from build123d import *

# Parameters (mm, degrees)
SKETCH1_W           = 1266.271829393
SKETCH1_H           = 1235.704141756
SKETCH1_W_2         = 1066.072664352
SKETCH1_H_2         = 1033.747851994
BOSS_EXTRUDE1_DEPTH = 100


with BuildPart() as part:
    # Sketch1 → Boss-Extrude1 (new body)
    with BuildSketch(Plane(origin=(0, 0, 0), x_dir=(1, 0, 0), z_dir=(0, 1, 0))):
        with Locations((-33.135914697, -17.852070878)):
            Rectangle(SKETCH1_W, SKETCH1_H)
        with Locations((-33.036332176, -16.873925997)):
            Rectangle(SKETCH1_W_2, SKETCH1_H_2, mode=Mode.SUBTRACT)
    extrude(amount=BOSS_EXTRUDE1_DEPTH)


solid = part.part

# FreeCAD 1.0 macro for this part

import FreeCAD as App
import Part
import Sketcher
from FreeCAD import Vector

doc = App.newDocument("Part")
params = doc.addObject("Spreadsheet::Sheet", "Params")
for row, (alias, value) in enumerate([
    ("pad1_length", "100 mm"),
], start=1):
    params.set(f"A{row}", alias)
    params.set(f"B{row}", "=" + value)
    params.setAlias(f"B{row}", alias)

body = doc.addObject("PartDesign::Body", "Body")

# Sketch on XZ plane
sketch1 = body.newObject("Sketcher::SketchObject", "Sketch")
sketch1.AttachmentSupport = (doc.getObject("XZ_Plane"), [""])
sketch1.MapMode = "FlatFace"
sketch1.addGeometry(Part.LineSegment(Vector(-666.271829, -600, 0), Vector(-666.271829, 635.704142, 0)), False)
sketch1.addGeometry(Part.LineSegment(Vector(-666.271829, 635.704142, 0), Vector(600, 635.704142, 0)), False)
sketch1.addGeometry(Part.LineSegment(Vector(600, 635.704142, 0), Vector(600, -600, 0)), False)
sketch1.addGeometry(Part.LineSegment(Vector(600, -600, 0), Vector(-666.271829, -600, 0)), False)
sketch1.addGeometry(Part.LineSegment(Vector(500, 533.747852, 0), Vector(-566.072664, 533.747852, 0)), False)
sketch1.addGeometry(Part.LineSegment(Vector(-566.072664, 533.747852, 0), Vector(-566.072664, -500, 0)), False)
sketch1.addGeometry(Part.LineSegment(Vector(-566.072664, -500, 0), Vector(500, -500, 0)), False)
sketch1.addGeometry(Part.LineSegment(Vector(500, -500, 0), Vector(500, 533.747852, 0)), False)
sketch1.addConstraint(Sketcher.Constraint("Coincident", 0, 2, 1, 1))
sketch1.addConstraint(Sketcher.Constraint("Coincident", 1, 2, 2, 1))
sketch1.addConstraint(Sketcher.Constraint("Coincident", 2, 2, 3, 1))
sketch1.addConstraint(Sketcher.Constraint("Coincident", 3, 2, 0, 1))
sketch1.addConstraint(Sketcher.Constraint("Coincident", 4, 2, 5, 1))
sketch1.addConstraint(Sketcher.Constraint("Coincident", 5, 2, 6, 1))
sketch1.addConstraint(Sketcher.Constraint("Coincident", 6, 2, 7, 1))
sketch1.addConstraint(Sketcher.Constraint("Coincident", 7, 2, 4, 1))
sketch1.addConstraint(Sketcher.Constraint("Vertical", 0))
sketch1.addConstraint(Sketcher.Constraint("Horizontal", 1))
sketch1.addConstraint(Sketcher.Constraint("Vertical", 2))
sketch1.addConstraint(Sketcher.Constraint("Horizontal", 3))
sketch1.addConstraint(Sketcher.Constraint("Horizontal", 4))
sketch1.addConstraint(Sketcher.Constraint("Vertical", 5))
sketch1.addConstraint(Sketcher.Constraint("Horizontal", 6))
sketch1.addConstraint(Sketcher.Constraint("Vertical", 7))
sketch1.addConstraint(Sketcher.Constraint("DistanceX", -1, 1, 1, 2, 600.0))
sketch1.addConstraint(Sketcher.Constraint("DistanceY", 2, 2, -1, 1, 600.0))
sketch1.addConstraint(Sketcher.Constraint("DistanceY", 5, 2, -1, 1, 500.0))
sketch1.addConstraint(Sketcher.Constraint("DistanceX", -1, 1, 6, 2, 500.0))
sketch1.addConstraint(Sketcher.Constraint("DistanceX", 1, 1, 1, 2, 1266.271829))
sketch1.addConstraint(Sketcher.Constraint("DistanceY", 0, 1, 0, 2, 1235.704142))
sketch1.addConstraint(Sketcher.Constraint("DistanceY", 5, 2, 5, 1, 1033.747852))
sketch1.addConstraint(Sketcher.Constraint("DistanceX", 4, 2, 4, 1, 1066.072664))
pad1 = body.newObject("PartDesign::Pad", "Pad")
pad1.Profile = sketch1
pad1.setExpression("Length", "Params.pad1_length")
pad1.Reversed = True

doc.recompute()
